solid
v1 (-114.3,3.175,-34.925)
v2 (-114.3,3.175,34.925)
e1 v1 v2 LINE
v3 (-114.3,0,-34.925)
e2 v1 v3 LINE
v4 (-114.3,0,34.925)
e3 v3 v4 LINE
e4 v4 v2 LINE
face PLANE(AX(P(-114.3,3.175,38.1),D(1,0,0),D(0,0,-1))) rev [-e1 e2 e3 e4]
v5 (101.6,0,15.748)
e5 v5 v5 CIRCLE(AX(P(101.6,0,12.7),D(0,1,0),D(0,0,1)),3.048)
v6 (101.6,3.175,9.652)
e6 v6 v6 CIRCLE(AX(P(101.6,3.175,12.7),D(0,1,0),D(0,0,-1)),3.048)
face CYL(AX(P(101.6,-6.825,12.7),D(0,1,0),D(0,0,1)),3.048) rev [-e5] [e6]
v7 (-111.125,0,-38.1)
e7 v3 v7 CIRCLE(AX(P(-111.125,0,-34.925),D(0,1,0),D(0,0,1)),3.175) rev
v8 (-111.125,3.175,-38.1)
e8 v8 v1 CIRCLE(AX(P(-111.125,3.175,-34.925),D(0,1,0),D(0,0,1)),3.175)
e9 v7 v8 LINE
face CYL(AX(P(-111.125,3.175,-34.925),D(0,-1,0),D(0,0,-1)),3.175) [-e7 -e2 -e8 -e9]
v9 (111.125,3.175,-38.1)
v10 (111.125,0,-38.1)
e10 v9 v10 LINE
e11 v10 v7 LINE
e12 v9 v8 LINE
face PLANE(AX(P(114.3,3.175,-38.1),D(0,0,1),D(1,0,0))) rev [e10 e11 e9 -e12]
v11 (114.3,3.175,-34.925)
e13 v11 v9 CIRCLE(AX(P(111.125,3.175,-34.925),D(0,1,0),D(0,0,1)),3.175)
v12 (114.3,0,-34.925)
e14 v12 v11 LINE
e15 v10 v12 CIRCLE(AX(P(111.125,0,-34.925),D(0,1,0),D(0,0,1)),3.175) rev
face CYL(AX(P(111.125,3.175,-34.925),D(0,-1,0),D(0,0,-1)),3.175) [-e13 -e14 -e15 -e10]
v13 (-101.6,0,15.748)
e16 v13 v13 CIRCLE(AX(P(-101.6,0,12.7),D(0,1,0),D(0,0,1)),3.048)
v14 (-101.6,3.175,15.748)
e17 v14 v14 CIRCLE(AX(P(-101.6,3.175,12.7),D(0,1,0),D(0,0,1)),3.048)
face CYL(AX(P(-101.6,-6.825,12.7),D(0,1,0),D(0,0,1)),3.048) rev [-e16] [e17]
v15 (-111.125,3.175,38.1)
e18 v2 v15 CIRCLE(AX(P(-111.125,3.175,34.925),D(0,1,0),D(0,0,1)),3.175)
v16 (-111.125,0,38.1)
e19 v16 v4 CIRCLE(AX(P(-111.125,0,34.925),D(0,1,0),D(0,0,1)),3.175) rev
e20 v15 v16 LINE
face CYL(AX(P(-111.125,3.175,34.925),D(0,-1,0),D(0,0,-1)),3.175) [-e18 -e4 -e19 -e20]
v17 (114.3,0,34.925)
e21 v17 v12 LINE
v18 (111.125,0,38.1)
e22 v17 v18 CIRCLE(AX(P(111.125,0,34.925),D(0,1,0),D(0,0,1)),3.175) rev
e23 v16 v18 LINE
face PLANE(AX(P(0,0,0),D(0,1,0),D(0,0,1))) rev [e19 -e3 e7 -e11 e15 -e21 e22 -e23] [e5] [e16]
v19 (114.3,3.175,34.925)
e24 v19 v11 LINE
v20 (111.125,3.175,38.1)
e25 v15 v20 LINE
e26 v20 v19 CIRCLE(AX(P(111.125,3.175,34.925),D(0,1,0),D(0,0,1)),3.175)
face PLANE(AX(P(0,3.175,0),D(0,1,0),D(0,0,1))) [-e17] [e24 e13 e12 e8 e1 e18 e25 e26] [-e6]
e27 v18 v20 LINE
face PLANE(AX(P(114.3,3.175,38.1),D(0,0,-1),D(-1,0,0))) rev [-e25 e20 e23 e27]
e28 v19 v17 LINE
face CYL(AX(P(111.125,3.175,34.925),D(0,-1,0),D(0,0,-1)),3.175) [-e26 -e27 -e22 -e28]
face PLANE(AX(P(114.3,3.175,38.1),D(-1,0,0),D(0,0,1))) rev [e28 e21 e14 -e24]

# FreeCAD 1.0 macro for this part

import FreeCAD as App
import Part
import Sketcher

V = App.Vector
Q = App.Units.Quantity


def edges_at(feature, points):
    """Names of the edges that pass closest to the given points."""
    edges = feature.Shape.Edges
    near = lambda p: min(range(len(edges)), key=lambda i: edges[i].distToShape(Part.Vertex(*p))[0])
    return sorted({f"Edge{near(p) + 1}" for p in points})

doc = App.newDocument("Part")
body = doc.addObject("PartDesign::Body", "Body")

sketch1 = body.newObject("Sketcher::SketchObject", "Sketch")
sketch1.AttachmentSupport = (doc.getObject("XZ_Plane"), [""])
sketch1.MapMode = "FlatFace"
sketch1.addGeometry([
    Part.LineSegment(V(-114.3, -38.1, 0), V(-114.3, 38.1, 0)),
    Part.LineSegment(V(-114.3, 38.1, 0), V(114.3, 38.1, 0)),
    Part.LineSegment(V(114.3, 38.1, 0), V(114.3, -38.1, 0)),
    Part.LineSegment(V(114.3, -38.1, 0), V(-114.3, -38.1, 0)),
], False)
sketch1.addConstraint([
    Sketcher.Constraint("Coincident", 0, 2, 1, 1),
    Sketcher.Constraint("Coincident", 1, 2, 2, 1),
    Sketcher.Constraint("Coincident", 2, 2, 3, 1),
    Sketcher.Constraint("Coincident", 3, 2, 0, 1),
    Sketcher.Constraint("Vertical", 0),
    Sketcher.Constraint("Horizontal", 1),
    Sketcher.Constraint("Vertical", 2),
    Sketcher.Constraint("Horizontal", 3),
    Sketcher.Constraint("Symmetric", 0, 2, 2, 2, -1, 1),
    Sketcher.Constraint("DistanceX", 1, 1, 1, 2, Q("9 in")),
    Sketcher.Constraint("DistanceY", 0, 1, 0, 2, Q("3 in")),
])
pad1 = body.newObject("PartDesign::Pad", "Pad")
pad1.Profile = sketch1
pad1.Length = Q("0.125 in")
pad1.Reversed = True

sketch2 = body.newObject("Sketcher::SketchObject", "Sketch001")
sketch2.AttachmentSupport = (doc.getObject("XZ_Plane"), [""])
sketch2.MapMode = "FlatFace"
sketch2.AttachmentOffset = App.Placement(V(0, 0, -0.125 * 25.4), App.Rotation())
sketch2.addGeometry([
    Part.Circle(V(-101.6, 12.7, 0), V(0, 0, 1), 3.048),
    Part.Circle(V(101.6, 12.7, 0), V(0, 0, 1), 3.048),
], False)
sketch2.addConstraint([
    Sketcher.Constraint("Equal", 0, 1),
    Sketcher.Constraint("Symmetric", 0, 3, 1, 3, -2),
    Sketcher.Constraint("Diameter", 0, Q("0.24 in")),
    Sketcher.Constraint("DistanceX", 0, 3, -1, 1, Q("4 in")),
    Sketcher.Constraint("DistanceY", -1, 1, 0, 3, Q("0.5 in")),
])
pocket1 = body.newObject("PartDesign::Pocket", "Pocket")
pocket1.Profile = sketch2
pocket1.Length = 10
pocket1.Reversed = True
doc.recompute()

fillet = body.newObject("PartDesign::Fillet", "Fillet")
fillet.Base = (pocket1, edges_at(pocket1, [
    (-114.3, 1.587, -38.1),
    (114.3, 1.587, -38.1),
    (114.3, 1.587, 38.1),
    (-114.3, 1.587, 38.1),
]))
fillet.Radius = Q("0.125 in")

doc.recompute()
